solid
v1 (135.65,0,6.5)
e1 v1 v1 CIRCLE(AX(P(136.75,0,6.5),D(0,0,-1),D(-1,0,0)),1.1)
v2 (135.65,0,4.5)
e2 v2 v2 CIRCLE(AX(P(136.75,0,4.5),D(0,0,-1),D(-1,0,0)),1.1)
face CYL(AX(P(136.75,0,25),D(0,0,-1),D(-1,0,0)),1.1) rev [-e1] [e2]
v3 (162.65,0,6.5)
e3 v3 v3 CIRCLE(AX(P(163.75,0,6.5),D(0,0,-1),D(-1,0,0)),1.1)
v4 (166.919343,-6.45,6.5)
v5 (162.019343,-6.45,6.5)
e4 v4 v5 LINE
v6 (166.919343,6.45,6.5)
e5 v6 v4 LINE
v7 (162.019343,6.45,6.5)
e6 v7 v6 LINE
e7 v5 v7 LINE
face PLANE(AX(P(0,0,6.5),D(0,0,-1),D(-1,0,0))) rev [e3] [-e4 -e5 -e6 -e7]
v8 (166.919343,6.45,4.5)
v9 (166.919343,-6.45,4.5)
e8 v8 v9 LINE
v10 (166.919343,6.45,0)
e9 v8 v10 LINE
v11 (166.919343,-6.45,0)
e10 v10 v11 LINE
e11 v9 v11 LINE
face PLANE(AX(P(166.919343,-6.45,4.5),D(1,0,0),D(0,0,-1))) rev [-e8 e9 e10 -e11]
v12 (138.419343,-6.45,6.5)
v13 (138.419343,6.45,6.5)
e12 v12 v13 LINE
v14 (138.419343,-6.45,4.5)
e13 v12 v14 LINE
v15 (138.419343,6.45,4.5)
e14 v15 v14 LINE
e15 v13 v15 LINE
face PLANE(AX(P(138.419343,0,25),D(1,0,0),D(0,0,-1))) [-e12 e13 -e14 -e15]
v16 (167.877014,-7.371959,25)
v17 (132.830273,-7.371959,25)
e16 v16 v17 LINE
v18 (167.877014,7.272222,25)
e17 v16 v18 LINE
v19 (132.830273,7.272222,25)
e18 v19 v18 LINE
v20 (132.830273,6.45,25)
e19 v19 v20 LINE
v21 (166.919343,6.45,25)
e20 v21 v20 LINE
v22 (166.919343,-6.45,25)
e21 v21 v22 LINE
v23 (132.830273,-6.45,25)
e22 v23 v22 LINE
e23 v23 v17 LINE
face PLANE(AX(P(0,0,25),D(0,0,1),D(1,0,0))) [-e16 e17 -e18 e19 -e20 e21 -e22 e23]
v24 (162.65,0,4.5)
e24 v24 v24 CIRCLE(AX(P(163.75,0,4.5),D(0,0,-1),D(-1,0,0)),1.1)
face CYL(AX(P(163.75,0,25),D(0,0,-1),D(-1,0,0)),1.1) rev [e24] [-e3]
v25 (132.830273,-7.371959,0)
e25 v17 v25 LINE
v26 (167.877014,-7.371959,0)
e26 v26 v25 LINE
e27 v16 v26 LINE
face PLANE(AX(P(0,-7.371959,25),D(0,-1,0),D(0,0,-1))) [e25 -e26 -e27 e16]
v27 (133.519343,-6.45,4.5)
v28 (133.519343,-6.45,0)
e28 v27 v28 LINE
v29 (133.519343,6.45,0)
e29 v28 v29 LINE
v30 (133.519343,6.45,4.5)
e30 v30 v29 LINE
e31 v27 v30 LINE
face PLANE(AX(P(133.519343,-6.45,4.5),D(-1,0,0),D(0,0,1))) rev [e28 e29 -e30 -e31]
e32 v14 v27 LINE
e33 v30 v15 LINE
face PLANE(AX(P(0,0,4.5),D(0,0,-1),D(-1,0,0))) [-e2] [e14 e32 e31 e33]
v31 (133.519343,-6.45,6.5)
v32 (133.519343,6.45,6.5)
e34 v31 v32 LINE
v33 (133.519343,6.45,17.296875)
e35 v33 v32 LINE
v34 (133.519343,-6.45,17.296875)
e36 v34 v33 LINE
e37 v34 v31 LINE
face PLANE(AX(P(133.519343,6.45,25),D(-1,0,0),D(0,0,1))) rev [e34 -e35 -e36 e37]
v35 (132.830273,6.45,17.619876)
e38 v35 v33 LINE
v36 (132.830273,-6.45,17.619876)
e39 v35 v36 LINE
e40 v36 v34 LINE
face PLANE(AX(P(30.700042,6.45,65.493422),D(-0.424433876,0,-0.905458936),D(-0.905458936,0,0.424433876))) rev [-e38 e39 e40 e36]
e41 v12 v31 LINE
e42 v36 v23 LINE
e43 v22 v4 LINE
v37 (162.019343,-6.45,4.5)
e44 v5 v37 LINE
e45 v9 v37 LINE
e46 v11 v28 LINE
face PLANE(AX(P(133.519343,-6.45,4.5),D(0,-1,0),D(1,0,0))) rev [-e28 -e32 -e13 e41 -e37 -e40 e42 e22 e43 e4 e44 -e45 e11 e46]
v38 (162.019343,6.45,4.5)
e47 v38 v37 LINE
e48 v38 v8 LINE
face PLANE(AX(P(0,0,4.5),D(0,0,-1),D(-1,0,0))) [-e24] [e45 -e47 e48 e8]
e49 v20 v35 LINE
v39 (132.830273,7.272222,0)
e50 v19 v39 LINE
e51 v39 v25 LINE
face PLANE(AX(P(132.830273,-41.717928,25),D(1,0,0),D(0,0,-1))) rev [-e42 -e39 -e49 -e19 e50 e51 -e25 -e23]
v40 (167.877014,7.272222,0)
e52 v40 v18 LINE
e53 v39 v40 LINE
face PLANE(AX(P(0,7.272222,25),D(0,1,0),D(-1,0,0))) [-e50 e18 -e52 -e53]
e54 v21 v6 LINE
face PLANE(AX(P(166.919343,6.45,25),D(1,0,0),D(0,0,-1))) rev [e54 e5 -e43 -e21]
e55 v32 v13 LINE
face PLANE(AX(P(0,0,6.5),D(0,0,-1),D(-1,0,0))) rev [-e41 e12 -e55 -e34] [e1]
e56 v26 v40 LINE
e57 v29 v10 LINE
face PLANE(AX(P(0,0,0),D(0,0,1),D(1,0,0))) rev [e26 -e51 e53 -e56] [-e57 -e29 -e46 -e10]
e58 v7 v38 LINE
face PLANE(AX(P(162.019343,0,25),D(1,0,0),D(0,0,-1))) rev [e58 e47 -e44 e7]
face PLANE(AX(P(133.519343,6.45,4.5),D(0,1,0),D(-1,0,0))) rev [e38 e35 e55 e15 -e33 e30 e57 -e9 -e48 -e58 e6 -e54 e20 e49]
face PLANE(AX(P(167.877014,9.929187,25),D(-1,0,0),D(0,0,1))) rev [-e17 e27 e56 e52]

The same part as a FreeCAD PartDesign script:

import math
import FreeCAD as App
import Part
import Sketcher

V = App.Vector


def add_polygon(sketch, points):
    """Adds a closed chain of lines whose ends are joined by coincident constraints."""
    first, n = sketch.GeometryCount, len(points)
    for a, b in zip(points, points[1:] + points[:1]):
        sketch.addGeometry(Part.LineSegment(App.Vector(*a, 0), App.Vector(*b, 0)), False)
    for i in range(n):
        sketch.addConstraint(Sketcher.Constraint("Coincident", first + i, 2, first + (i + 1) % n, 1))

doc = App.newDocument("Part")
body = doc.addObject("PartDesign::Body", "Body")

# Sketch on XY plane
sketch1 = body.newObject("Sketcher::SketchObject", "Sketch")
sketch1.AttachmentSupport = (doc.getObject("XY_Plane"), [""])
sketch1.MapMode = "FlatFace"
sketch1.addGeometry(Part.LineSegment(V(23.048861, -15, 0), V(121.951139, -15, 0)), False)
sketch1.addGeometry(Part.ArcOfCircle(Part.Circle(V(145, 0, 0), V(0, 0, 1), 27.5), math.radians(-146.944269), math.radians(0)), False)
sketch1.addGeometry(Part.ArcOfCircle(Part.Circle(V(145, 0, 0), V(0, 0, 1), 27.5), math.radians(0), math.radians(146.944269)), False)
sketch1.addGeometry(Part.LineSegment(V(121.951139, 15, 0), V(23.048861, 15, 0)), False)
sketch1.addGeometry(Part.ArcOfCircle(Part.Circle(V(0, 0, 0), V(0, 0, 1), 27.5), math.radians(33.055731), math.radians(326.944269)), False)
sketch1.addConstraint(Sketcher.Constraint("Coincident", 0, 2, 1, 1))
sketch1.addConstraint(Sketcher.Constraint("Tangent", 1, 2, 2, 1))
sketch1.addConstraint(Sketcher.Constraint("Coincident", 2, 2, 3, 1))
sketch1.addConstraint(Sketcher.Constraint("Coincident", 3, 2, 4, 1))
sketch1.addConstraint(Sketcher.Constraint("Coincident", 4, 2, 0, 1))
sketch1.addConstraint(Sketcher.Constraint("Horizontal", 0))
sketch1.addConstraint(Sketcher.Constraint("Horizontal", 3))
sketch1.addConstraint(Sketcher.Constraint("Coincident", 4, 3, -1, 1))
sketch1.addConstraint(Sketcher.Constraint("Equal", 1, 2))
sketch1.addConstraint(Sketcher.Constraint("Equal", 2, 4))
sketch1.addConstraint(Sketcher.Constraint("Symmetric", 0, 2, 2, 2, -1))
sketch1.addConstraint(Sketcher.Constraint("PointOnObject", 1, 2, -1))
sketch1.addConstraint(Sketcher.Constraint("Radius", 1, 27.5))
sketch1.addConstraint(Sketcher.Constraint("DistanceX", -1, 1, 1, 3, 145.0))
sketch1.addConstraint(Sketcher.Constraint("DistanceY", 0, 2, -1, 1, 15.0))
pad1 = body.newObject("PartDesign::Pad", "Pad")
pad1.Profile = sketch1
pad1.Length = 25

# Sketch on XY plane
sketch2 = body.newObject("Sketcher::SketchObject", "Sketch001")
sketch2.AttachmentSupport = (doc.getObject("XY_Plane"), [""])
sketch2.MapMode = "FlatFace"
add_polygon(sketch2, [(166.919343, 6.45), (166.919343, -6.45), (133.519343, -6.45), (133.519343, 6.45)])  # lines 0-3
sketch2.addConstraint(Sketcher.Constraint("Vertical", 0))
sketch2.addConstraint(Sketcher.Constraint("Horizontal", 1))
sketch2.addConstraint(Sketcher.Constraint("Vertical", 2))
sketch2.addConstraint(Sketcher.Constraint("Horizontal", 3))
sketch2.addConstraint(Sketcher.Constraint("DistanceX", 1, 2, 1, 1, 33.4))
sketch2.addConstraint(Sketcher.Constraint("DistanceY", 0, 2, 0, 1, 12.9))
sketch2.addConstraint(Sketcher.Constraint("DistanceY", 0, 2, -1, 1, 6.45))
sketch2.addConstraint(Sketcher.Constraint("DistanceX", -1, 1, 0, 2, 166.919343))
pocket1 = body.newObject("PartDesign::Pocket", "Pocket")
pocket1.Profile = sketch2
pocket1.Length = 4.5
pocket1.Reversed = True

# Sketch on XY plane
sketch3 = body.newObject("Sketcher::SketchObject", "Sketch002")
sketch3.AttachmentSupport = (doc.getObject("XY_Plane"), [""])
sketch3.MapMode = "FlatFace"
sketch3.addGeometry(Part.Circle(V(0, 0, 0), V(0, 0, 1), 20), False)
sketch3.addConstraint(Sketcher.Constraint("Coincident", 0, 3, -1, 1))
sketch3.addConstraint(Sketcher.Constraint("Diameter", 0, 40.0))
pocket2 = body.newObject("PartDesign::Pocket", "Pocket001")
pocket2.Profile = sketch3
pocket2.Length = 7.55
pocket2.Reversed = True

# Sketch on XY plane
sketch4 = body.newObject("Sketcher::SketchObject", "Sketch003")
sketch4.AttachmentSupport = (doc.getObject("XY_Plane"), [""])
sketch4.MapMode = "FlatFace"
add_polygon(sketch4, [(162.019343, 6.45), (162.019343, -6.45), (138.419343, -6.45), (138.419343, 6.45)])  # lines 0-3
sketch4.addConstraint(Sketcher.Constraint("Vertical", 0))
sketch4.addConstraint(Sketcher.Constraint("Horizontal", 1))
sketch4.addConstraint(Sketcher.Constraint("Vertical", 2))
sketch4.addConstraint(Sketcher.Constraint("Horizontal", 3))
sketch4.addConstraint(Sketcher.Constraint("DistanceX", 1, 2, 1, 1, 23.6))
sketch4.addConstraint(Sketcher.Constraint("DistanceY", 0, 2, 0, 1, 12.9))
sketch4.addConstraint(Sketcher.Constraint("DistanceY", 0, 2, -1, 1, 6.45))
sketch4.addConstraint(Sketcher.Constraint("DistanceX", -1, 1, 0, 2, 162.019343))
pocket3 = body.newObject("PartDesign::Pocket", "Pocket002")
pocket3.Profile = sketch4
pocket3.Type = "ThroughAll"
pocket3.Reversed = True

# Sketch on XZ plane
sketch5 = body.newObject("Sketcher::SketchObject", "Sketch004")
sketch5.AttachmentSupport = (doc.getObject("XZ_Plane"), [""])
sketch5.MapMode = "FlatFace"
add_polygon(sketch5, [(138.419343, 15), (138.419343, 25), (122.419343, 25), (122.419343, 22.5)])  # lines 0-3
sketch5.addConstraint(Sketcher.Constraint("Vertical", 0))
sketch5.addConstraint(Sketcher.Constraint("Horizontal", 1))
sketch5.addConstraint(Sketcher.Constraint("Vertical", 2))
sketch5.addConstraint(Sketcher.Constraint("DistanceX", 1, 2, 1, 1, 16.0))
sketch5.addConstraint(Sketcher.Constraint("DistanceY", 0, 1, 0, 2, 10.0))
sketch5.addConstraint(Sketcher.Constraint("DistanceY", 2, 2, 2, 1, 2.5))
sketch5.addConstraint(Sketcher.Constraint("DistanceY", -1, 1, 0, 2, 25.0))
sketch5.addConstraint(Sketcher.Constraint("DistanceX", -1, 1, 0, 2, 138.419343))
pocket4 = body.newObject("PartDesign::Pocket", "Pocket003")
pocket4.Profile = sketch5
pocket4.Length = 12.9
pocket4.Midplane = True

# Sketch on XY plane
sketch6 = body.newObject("Sketcher::SketchObject", "Sketch005")
sketch6.AttachmentSupport = (doc.getObject("XY_Plane"), [""])
sketch6.MapMode = "FlatFace"
sketch6.AttachmentOffset = App.Placement(V(0, 0, 6.5), App.Rotation())
add_polygon(sketch6, [(166.919343, 6.45), (166.919343, -6.45), (133.519343, -6.45), (133.519343, 6.45)])  # lines 0-3
sketch6.addConstraint(Sketcher.Constraint("Vertical", 0))
sketch6.addConstraint(Sketcher.Constraint("Horizontal", 1))
sketch6.addConstraint(Sketcher.Constraint("Vertical", 2))
sketch6.addConstraint(Sketcher.Constraint("Horizontal", 3))
sketch6.addConstraint(Sketcher.Constraint("DistanceX", 1, 2, 1, 1, 33.4))
sketch6.addConstraint(Sketcher.Constraint("DistanceY", 0, 2, 0, 1, 12.9))
sketch6.addConstraint(Sketcher.Constraint("DistanceY", 0, 2, -1, 1, 6.45))
sketch6.addConstraint(Sketcher.Constraint("DistanceX", -1, 1, 0, 2, 166.919343))
pocket5 = body.newObject("PartDesign::Pocket", "Pocket004")
pocket5.Profile = sketch6
pocket5.Type = "ThroughAll"
pocket5.Reversed = True

# Sketch on XY plane
sketch7 = body.newObject("Sketcher::SketchObject", "Sketch006")
sketch7.AttachmentSupport = (doc.getObject("XY_Plane"), [""])
sketch7.MapMode = "FlatFace"
sketch7.addGeometry(Part.Circle(V(163.75, 0, 0), V(0, 0, 1), 1.1), False)
sketch7.addGeometry(Part.Circle(V(136.75, 0, 0), V(0, 0, 1), 1.1), False)
sketch7.addConstraint(Sketcher.Constraint("Equal", 0, 1))
sketch7.addConstraint(Sketcher.Constraint("PointOnObject", 0, 3, -1))
sketch7.addConstraint(Sketcher.Constraint("PointOnObject", 1, 3, -1))
sketch7.addConstraint(Sketcher.Constraint("Diameter", 0, 2.2))
sketch7.addConstraint(Sketcher.Constraint("DistanceX", 1, 3, 0, 3, 27.0))
sketch7.addConstraint(Sketcher.Constraint("DistanceX", -1, 1, 0, 3, 163.75))
pocket6 = body.newObject("PartDesign::Pocket", "Pocket005")
pocket6.Profile = sketch7
pocket6.Type = "ThroughAll"
pocket6.Reversed = True

# Sketch on XY plane
sketch8 = body.newObject("Sketcher::SketchObject", "Sketch007")
sketch8.AttachmentSupport = (doc.getObject("XY_Plane"), [""])
sketch8.MapMode = "FlatFace"
sketch8.AttachmentOffset = App.Placement(V(0, 0, 25), App.Rotation())
sketch8.addGeometry(Part.Circle(V(0, 0, 0), V(0, 0, 1), 2), False)
sketch8.addConstraint(Sketcher.Constraint("Coincident", 0, 3, -1, 1))
sketch8.addConstraint(Sketcher.Constraint("Diameter", 0, 4.0))
pocket7 = body.newObject("PartDesign::Pocket", "Pocket006")
pocket7.Profile = sketch8
pocket7.Length = 17.45

# Sketch on XY plane
sketch9 = body.newObject("Sketcher::SketchObject", "Sketch008")
sketch9.AttachmentSupport = (doc.getObject("XY_Plane"), [""])
sketch9.MapMode = "FlatFace"
add_polygon(sketch9, [(132.830273, 44.859043), (132.830273, -41.717928), (-29.732063, -41.717928), (-29.732063, 44.859043)])  # lines 0-3
sketch9.addConstraint(Sketcher.Constraint("Vertical", 0))
sketch9.addConstraint(Sketcher.Constraint("Horizontal", 1))
sketch9.addConstraint(Sketcher.Constraint("Vertical", 2))
sketch9.addConstraint(Sketcher.Constraint("Horizontal", 3))
sketch9.addConstraint(Sketcher.Constraint("DistanceY", 0, 2, 0, 1, 86.576971))
sketch9.addConstraint(Sketcher.Constraint("DistanceX", 1, 2, 1, 1, 162.562335))
sketch9.addConstraint(Sketcher.Constraint("DistanceY", 0, 2, -1, 1, 41.717928))
sketch9.addConstraint(Sketcher.Constraint("DistanceX", -1, 1, 0, 2, 132.830273))
pocket8 = body.newObject("PartDesign::Pocket", "Pocket007")
pocket8.Profile = sketch9
pocket8.Type = "ThroughAll"
pocket8.Reversed = True

# Sketch on XY plane
sketch10 = body.newObject("Sketcher::SketchObject", "Sketch009")
sketch10.AttachmentSupport = (doc.getObject("XY_Plane"), [""])
sketch10.MapMode = "FlatFace"
sketch10.addGeometry(Part.ArcOfCircle(Part.Circle(V(145, 0, 0), V(0, 0, 1), 27.5), math.radians(-116.26577), math.radians(-15.549526)), False)
sketch10.addGeometry(Part.LineSegment(V(132.830273, -24.660652, 0), V(132.830273, -7.371959, 0)), False)
sketch10.addGeometry(Part.LineSegment(V(132.830273, -7.371959, 0), V(171.493475, -7.371959, 0)), False)
sketch10.addGeometry(Part.LineSegment(V(185.462542, -7.371959, 0), V(171.493475, -7.371959, 0)), False)
sketch10.addGeometry(Part.ArcOfCircle(Part.Circle(V(145, 0, 0), V(0, 0, 1), 27.5), math.radians(-15.549526), math.radians(15.333943)), False)
sketch10.addGeometry(Part.LineSegment(V(171.521025, 7.272222, 0), V(185.462542, 7.272222, 0)), False)
sketch10.addGeometry(Part.LineSegment(V(185.462542, 7.272222, 0), V(185.462542, -7.371959, 0)), False)
sketch10.addGeometry(Part.ArcOfCircle(Part.Circle(V(145, 0, 0), V(0, 0, 1), 27.5), math.radians(15.333943), math.radians(116.26577)), False)
sketch10.addGeometry(Part.LineSegment(V(171.521025, 7.272222, 0), V(132.830273, 7.272222, 0)), False)
sketch10.addGeometry(Part.LineSegment(V(132.830273, 7.272222, 0), V(132.830273, 24.660652, 0)), False)
sketch10.addConstraint(Sketcher.Constraint("Coincident", 0, 1, 1, 1))
sketch10.addConstraint(Sketcher.Constraint("Coincident", 1, 2, 2, 1))
sketch10.addConstraint(Sketcher.Constraint("Coincident", 2, 2, 0, 2))
sketch10.addConstraint(Sketcher.Constraint("Coincident", 3, 2, 4, 1))
sketch10.addConstraint(Sketcher.Constraint("Coincident", 4, 2, 5, 1))
sketch10.addConstraint(Sketcher.Constraint("Coincident", 5, 2, 6, 1))
sketch10.addConstraint(Sketcher.Constraint("Coincident", 6, 2, 3, 1))
sketch10.addConstraint(Sketcher.Constraint("Coincident", 7, 1, 8, 1))
sketch10.addConstraint(Sketcher.Constraint("Coincident", 8, 2, 9, 1))
sketch10.addConstraint(Sketcher.Constraint("Coincident", 9, 2, 7, 2))
sketch10.addConstraint(Sketcher.Constraint("Vertical", 1))
sketch10.addConstraint(Sketcher.Constraint("Horizontal", 2))
sketch10.addConstraint(Sketcher.Constraint("Horizontal", 3))
sketch10.addConstraint(Sketcher.Constraint("Horizontal", 5))
sketch10.addConstraint(Sketcher.Constraint("Vertical", 6))
sketch10.addConstraint(Sketcher.Constraint("Horizontal", 8))
sketch10.addConstraint(Sketcher.Constraint("Vertical", 9))
sketch10.addConstraint(Sketcher.Constraint("Coincident", 4, 3, 0, 3))
sketch10.addConstraint(Sketcher.Constraint("Coincident", 7, 3, 0, 3))
sketch10.addConstraint(Sketcher.Constraint("Coincident", 3, 2, 2, 2))
sketch10.addConstraint(Sketcher.Constraint("Coincident", 7, 1, 4, 2))
sketch10.addConstraint(Sketcher.Constraint("Symmetric", 0, 1, 9, 2, -1))
sketch10.addConstraint(Sketcher.Constraint("Radius", 0, 27.5))
sketch10.addConstraint(Sketcher.Constraint("DistanceX", -1, 1, 0, 3, 145.0))
sketch10.addConstraint(Sketcher.Constraint("DistanceY", 6, 2, 6, 1, 14.644181))
sketch10.addConstraint(Sketcher.Constraint("DistanceY", 9, 1, 9, 2, 17.38843))
sketch10.addConstraint(Sketcher.Constraint("DistanceX", 2, 1, 2, 2, 38.663202))
sketch10.addConstraint(Sketcher.Constraint("DistanceX", 3, 2, 3, 1, 13.969067))
pocket9 = body.newObject("PartDesign::Pocket", "Pocket008")
pocket9.Profile = sketch10
pocket9.Type = "ThroughAll"
pocket9.Reversed = True

# Sketch on XY plane
sketch11 = body.newObject("Sketcher::SketchObject", "Sketch010")
sketch11.AttachmentSupport = (doc.getObject("XY_Plane"), [""])
sketch11.MapMode = "FlatFace"
add_polygon(sketch11, [(174.317166, 9.929187), (174.317166, -11.125158), (167.877014, -11.125158), (167.877014, 9.929187)])  # lines 0-3
sketch11.addConstraint(Sketcher.Constraint("Vertical", 0))
sketch11.addConstraint(Sketcher.Constraint("Horizontal", 1))
sketch11.addConstraint(Sketcher.Constraint("Vertical", 2))
sketch11.addConstraint(Sketcher.Constraint("Horizontal", 3))
sketch11.addConstraint(Sketcher.Constraint("DistanceX", 1, 2, 1, 1, 6.440153))
sketch11.addConstraint(Sketcher.Constraint("DistanceY", 0, 2, 0, 1, 21.054345))
sketch11.addConstraint(Sketcher.Constraint("DistanceY", 0, 2, -1, 1, 11.125158))
sketch11.addConstraint(Sketcher.Constraint("DistanceX", -1, 1, 0, 2, 174.317166))
pocket10 = body.newObject("PartDesign::Pocket", "Pocket009")
pocket10.Profile = sketch11
pocket10.Type = "ThroughAll"
pocket10.Reversed = True

doc.recompute()
